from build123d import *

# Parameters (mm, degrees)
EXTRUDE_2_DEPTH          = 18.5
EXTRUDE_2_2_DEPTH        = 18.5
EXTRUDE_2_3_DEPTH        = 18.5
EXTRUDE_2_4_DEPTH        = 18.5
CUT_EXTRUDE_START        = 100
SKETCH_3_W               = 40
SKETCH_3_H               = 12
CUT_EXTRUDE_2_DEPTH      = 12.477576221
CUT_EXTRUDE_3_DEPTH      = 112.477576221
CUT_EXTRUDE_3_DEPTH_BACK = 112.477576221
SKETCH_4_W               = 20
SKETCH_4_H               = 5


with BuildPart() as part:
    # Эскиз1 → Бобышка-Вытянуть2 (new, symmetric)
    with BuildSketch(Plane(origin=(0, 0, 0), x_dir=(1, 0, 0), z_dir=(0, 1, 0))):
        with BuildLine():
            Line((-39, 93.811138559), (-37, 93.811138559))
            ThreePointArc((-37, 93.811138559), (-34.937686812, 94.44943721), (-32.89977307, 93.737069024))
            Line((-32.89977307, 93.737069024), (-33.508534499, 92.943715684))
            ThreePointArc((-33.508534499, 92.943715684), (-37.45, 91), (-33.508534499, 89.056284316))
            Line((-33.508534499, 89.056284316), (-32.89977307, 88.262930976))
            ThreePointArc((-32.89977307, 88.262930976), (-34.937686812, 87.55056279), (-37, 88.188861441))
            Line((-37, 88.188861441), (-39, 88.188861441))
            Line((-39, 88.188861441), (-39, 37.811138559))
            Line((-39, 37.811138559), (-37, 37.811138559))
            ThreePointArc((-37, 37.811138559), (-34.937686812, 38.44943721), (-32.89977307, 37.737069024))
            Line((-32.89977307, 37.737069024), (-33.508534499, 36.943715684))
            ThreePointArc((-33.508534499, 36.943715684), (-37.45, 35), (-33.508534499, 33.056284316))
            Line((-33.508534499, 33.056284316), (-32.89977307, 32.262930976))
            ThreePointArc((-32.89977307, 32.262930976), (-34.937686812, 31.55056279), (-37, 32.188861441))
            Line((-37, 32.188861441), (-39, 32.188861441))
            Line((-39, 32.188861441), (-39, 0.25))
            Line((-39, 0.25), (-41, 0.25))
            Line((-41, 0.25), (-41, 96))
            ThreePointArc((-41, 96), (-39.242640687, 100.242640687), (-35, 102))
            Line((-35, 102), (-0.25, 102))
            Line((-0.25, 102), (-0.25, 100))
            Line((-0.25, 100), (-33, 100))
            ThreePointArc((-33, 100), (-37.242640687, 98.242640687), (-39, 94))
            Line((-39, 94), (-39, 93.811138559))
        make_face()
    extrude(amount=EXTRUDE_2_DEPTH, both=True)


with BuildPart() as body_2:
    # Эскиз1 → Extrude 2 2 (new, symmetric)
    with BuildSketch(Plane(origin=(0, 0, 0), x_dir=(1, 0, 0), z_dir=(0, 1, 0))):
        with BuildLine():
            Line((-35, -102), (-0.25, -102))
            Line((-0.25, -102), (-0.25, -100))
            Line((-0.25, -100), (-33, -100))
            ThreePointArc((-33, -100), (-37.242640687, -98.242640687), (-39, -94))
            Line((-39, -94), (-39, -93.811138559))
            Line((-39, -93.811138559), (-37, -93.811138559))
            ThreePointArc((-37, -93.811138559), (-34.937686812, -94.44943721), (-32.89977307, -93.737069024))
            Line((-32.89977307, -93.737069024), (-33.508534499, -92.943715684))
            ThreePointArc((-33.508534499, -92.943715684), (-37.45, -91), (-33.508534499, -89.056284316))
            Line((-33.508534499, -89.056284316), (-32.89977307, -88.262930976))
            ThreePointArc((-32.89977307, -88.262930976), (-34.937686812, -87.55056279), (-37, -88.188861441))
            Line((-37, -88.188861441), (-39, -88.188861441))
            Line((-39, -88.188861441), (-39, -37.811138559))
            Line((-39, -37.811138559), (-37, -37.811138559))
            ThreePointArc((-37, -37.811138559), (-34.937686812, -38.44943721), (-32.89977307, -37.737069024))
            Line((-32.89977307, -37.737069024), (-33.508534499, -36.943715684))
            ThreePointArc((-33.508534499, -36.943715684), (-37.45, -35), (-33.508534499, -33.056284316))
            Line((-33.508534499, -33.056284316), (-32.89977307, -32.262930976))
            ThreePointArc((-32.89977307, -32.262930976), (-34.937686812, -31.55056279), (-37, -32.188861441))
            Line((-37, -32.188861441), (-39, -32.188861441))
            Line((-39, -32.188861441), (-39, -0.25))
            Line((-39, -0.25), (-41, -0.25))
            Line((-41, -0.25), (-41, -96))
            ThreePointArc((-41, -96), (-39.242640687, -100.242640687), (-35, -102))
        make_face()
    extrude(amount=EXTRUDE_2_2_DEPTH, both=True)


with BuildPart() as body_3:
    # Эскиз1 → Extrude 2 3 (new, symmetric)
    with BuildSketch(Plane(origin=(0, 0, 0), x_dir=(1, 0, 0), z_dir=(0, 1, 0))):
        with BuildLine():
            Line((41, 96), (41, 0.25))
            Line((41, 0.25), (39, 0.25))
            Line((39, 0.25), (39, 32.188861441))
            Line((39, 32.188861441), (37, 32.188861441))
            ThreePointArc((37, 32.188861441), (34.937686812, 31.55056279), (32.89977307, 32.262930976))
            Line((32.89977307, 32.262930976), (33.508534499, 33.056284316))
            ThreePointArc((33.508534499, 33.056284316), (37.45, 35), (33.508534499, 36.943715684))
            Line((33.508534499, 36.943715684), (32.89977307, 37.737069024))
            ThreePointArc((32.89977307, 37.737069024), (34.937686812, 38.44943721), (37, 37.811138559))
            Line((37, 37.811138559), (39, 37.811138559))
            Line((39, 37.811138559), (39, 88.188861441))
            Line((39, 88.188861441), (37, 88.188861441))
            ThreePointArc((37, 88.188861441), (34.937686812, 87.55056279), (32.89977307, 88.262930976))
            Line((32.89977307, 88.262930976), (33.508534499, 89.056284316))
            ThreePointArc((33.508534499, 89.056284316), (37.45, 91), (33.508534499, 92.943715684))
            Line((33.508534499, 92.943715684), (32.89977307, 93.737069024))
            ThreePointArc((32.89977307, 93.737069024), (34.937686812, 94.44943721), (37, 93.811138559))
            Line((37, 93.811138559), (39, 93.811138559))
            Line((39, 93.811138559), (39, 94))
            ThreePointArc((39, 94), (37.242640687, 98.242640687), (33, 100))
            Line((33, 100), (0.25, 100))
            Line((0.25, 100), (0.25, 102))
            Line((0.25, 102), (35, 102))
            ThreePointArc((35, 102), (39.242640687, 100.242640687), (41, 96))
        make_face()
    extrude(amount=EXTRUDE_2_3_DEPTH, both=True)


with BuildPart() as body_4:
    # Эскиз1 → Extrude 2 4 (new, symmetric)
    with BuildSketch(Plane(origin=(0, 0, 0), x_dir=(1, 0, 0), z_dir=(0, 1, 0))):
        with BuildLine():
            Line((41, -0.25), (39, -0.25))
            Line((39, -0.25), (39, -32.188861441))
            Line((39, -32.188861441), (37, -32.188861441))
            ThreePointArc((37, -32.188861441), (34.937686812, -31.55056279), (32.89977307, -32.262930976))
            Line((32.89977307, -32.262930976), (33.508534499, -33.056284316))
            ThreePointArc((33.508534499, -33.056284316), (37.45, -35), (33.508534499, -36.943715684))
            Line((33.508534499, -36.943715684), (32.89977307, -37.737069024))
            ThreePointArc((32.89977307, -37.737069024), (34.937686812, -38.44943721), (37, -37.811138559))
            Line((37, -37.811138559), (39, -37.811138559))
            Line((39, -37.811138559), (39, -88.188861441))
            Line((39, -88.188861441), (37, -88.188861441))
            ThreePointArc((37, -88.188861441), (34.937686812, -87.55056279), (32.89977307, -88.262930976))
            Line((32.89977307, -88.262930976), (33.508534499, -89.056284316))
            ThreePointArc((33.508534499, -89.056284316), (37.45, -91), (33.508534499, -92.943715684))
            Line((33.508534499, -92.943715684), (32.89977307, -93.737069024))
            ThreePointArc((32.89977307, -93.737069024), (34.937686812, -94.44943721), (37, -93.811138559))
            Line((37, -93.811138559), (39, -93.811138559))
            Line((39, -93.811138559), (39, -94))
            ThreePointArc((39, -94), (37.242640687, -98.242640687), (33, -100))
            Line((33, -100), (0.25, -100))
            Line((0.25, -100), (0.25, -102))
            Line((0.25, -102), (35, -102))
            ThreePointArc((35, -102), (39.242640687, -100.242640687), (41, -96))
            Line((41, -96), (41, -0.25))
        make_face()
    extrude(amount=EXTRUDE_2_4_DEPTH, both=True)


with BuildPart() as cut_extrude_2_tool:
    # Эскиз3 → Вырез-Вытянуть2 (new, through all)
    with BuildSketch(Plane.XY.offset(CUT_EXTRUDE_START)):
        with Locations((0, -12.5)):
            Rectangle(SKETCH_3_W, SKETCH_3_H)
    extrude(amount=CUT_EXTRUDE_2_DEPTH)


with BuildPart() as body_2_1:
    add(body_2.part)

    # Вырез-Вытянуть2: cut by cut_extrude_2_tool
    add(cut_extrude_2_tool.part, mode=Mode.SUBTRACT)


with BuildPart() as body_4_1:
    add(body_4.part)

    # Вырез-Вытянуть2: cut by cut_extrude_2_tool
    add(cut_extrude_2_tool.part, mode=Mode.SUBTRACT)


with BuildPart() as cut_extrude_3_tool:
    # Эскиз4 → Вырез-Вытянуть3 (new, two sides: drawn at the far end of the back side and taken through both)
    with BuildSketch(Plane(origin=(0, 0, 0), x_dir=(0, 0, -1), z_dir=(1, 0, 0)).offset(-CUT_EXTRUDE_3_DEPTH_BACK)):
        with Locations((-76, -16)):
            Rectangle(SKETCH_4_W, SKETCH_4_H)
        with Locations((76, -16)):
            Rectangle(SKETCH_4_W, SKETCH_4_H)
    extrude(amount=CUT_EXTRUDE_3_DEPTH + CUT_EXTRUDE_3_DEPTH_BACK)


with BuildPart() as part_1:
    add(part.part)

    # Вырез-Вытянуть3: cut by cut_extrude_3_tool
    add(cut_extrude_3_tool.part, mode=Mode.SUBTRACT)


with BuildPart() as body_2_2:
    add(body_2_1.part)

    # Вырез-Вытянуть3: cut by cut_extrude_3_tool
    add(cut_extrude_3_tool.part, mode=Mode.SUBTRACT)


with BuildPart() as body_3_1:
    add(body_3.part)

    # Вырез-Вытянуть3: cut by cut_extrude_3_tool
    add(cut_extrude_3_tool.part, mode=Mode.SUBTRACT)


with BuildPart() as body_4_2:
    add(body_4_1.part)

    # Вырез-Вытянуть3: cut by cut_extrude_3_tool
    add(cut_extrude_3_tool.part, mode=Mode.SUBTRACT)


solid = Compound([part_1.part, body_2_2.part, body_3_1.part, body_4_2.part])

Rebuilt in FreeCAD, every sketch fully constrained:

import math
import FreeCAD as App
import Part
import Sketcher

V = App.Vector
Q = App.Units.Quantity


def add_polygon(sketch, points):
    """Adds a closed chain of lines whose ends are joined by coincident constraints."""
    first, n = sketch.GeometryCount, len(points)
    for a, b in zip(points, points[1:] + points[:1]):
        sketch.addGeometry(Part.LineSegment(App.Vector(*a, 0), App.Vector(*b, 0)), False)
    for i in range(n):
        sketch.addConstraint(Sketcher.Constraint("Coincident", first + i, 2, first + (i + 1) % n, 1))

doc = App.newDocument("Part")
params = doc.addObject("Spreadsheet::Sheet", "Params")
for row, (alias, value) in enumerate([
    ("sketch1_radius", "6 mm"),
    ("sketch1_width", "2 mm"),
    ("sketch1_radius2", "3.45 mm"),
    ("sketch1_radius3", "2.45 mm"),
    ("sketch1_width2", "32.75 mm"),
    ("pad1_length", "37 mm"),
    ("sketch2_radius", "6 mm"),
    ("sketch2_width", "2 mm"),
    ("sketch2_radius2", "3.45 mm"),
    ("sketch2_radius3", "2.45 mm"),
    ("sketch2_width2", "34.75 mm"),
    ("pad2_length", "37 mm"),
    ("sketch3_radius", "6 mm"),
    ("sketch3_width", "2 mm"),
    ("sketch3_radius2", "3.45 mm"),
    ("sketch3_radius3", "2.45 mm"),
    ("sketch3_width2", "34.75 mm"),
    ("pad3_length", "37 mm"),
    ("sketch4_radius", "6 mm"),
    ("sketch4_width", "2 mm"),
    ("sketch4_radius2", "3.45 mm"),
    ("sketch4_radius3", "2.45 mm"),
    ("sketch4_width2", "32.75 mm"),
    ("pad4_length", "37 mm"),
    ("sketch5_width", "40 mm"),
    ("sketch5_height", "12 mm"),
    ("pad5_length", "12.477576 mm"),
    ("sketch6_width", "5 mm"),
    ("sketch6_height", "20 mm"),
    ("pad6_length", "112.477576 mm"),
    ("pad6_length2", "112.477576 mm"),
], start=1):
    params.set(f"A{row}", alias)
    params.set(f"B{row}", "=" + value)
    params.setAlias(f"B{row}", alias)

body = doc.addObject("PartDesign::Body", "Body")

# Sketch on XZ plane
sketch1 = body.newObject("Sketcher::SketchObject", "Sketch")
sketch1.AttachmentSupport = (doc.getObject("XZ_Plane"), [""])
sketch1.MapMode = "FlatFace"
sketch1.addGeometry([
    Part.LineSegment(V(-37, -93.811139, 0), V(-39, -93.811139, 0)),  # 0
    Part.LineSegment(V(-39, -93.811139, 0), V(-39, -94, 0)),  # 1
    Part.ArcOfCircle(Part.Circle(V(-33, -94, 0), V(0, 0, 1), 6), math.radians(180), math.radians(270)),  # 2
    Part.LineSegment(V(-33, -100, 0), V(-0.25, -100, 0)),  # 3
    Part.LineSegment(V(-0.25, -100, 0), V(-0.25, -102, 0)),  # 4
    Part.LineSegment(V(-0.25, -102, 0), V(-35, -102, 0)),  # 5
    Part.ArcOfCircle(Part.Circle(V(-35, -96, 0), V(0, 0, 1), 6), math.radians(180), math.radians(270)),  # 6
    Part.LineSegment(V(-41, -96, 0), V(-41, -0.25, 0)),  # 7
    Part.LineSegment(V(-41, -0.25, 0), V(-39, -0.25, 0)),  # 8
    Part.LineSegment(V(-39, -0.25, 0), V(-39, -32.188861, 0)),  # 9
    Part.LineSegment(V(-39, -32.188861, 0), V(-37, -32.188861, 0)),  # 10
    Part.ArcOfCircle(Part.Circle(V(-35, -35, 0), V(0, 0, 1), 3.45), math.radians(52.5), math.radians(125.430158)),  # 11
    Part.LineSegment(V(-32.899773, -32.262931, 0), V(-33.508534, -33.056284, 0)),  # 12
    Part.ArcOfCircle(Part.Circle(V(-35, -35, 0), V(0, 0, 1), 2.45), math.radians(52.5), math.radians(307.5)),  # 13
    Part.LineSegment(V(-33.508534, -36.943716, 0), V(-32.899773, -37.737069, 0)),  # 14
    Part.ArcOfCircle(Part.Circle(V(-35, -35, 0), V(0, 0, 1), 3.45), math.radians(-125.430158), math.radians(-52.5)),  # 15
    Part.LineSegment(V(-37, -37.811139, 0), V(-39, -37.811139, 0)),  # 16
    Part.LineSegment(V(-39, -37.811139, 0), V(-39, -88.188861, 0)),  # 17
    Part.LineSegment(V(-39, -88.188861, 0), V(-37, -88.188861, 0)),  # 18
    Part.ArcOfCircle(Part.Circle(V(-35, -91, 0), V(0, 0, 1), 3.45), math.radians(52.5), math.radians(125.430158)),  # 19
    Part.LineSegment(V(-32.899773, -88.262931, 0), V(-33.508534, -89.056284, 0)),  # 20
    Part.ArcOfCircle(Part.Circle(V(-35, -91, 0), V(0, 0, 1), 2.45), math.radians(52.5), math.radians(307.5)),  # 21
    Part.LineSegment(V(-33.508534, -92.943716, 0), V(-32.899773, -93.737069, 0)),  # 22
    Part.ArcOfCircle(Part.Circle(V(-35, -91, 0), V(0, 0, 1), 3.45), math.radians(-125.430158), math.radians(-52.5)),  # 23
], False)
sketch1.addConstraint([
    Sketcher.Constraint("Coincident", 0, 2, 1, 1),
    Sketcher.Constraint("Tangent", 1, 2, 2, 1),
    Sketcher.Constraint("Tangent", 2, 2, 3, 1),
    Sketcher.Constraint("Coincident", 3, 2, 4, 1),
    Sketcher.Constraint("Coincident", 4, 2, 5, 1),
    Sketcher.Constraint("Tangent", 5, 2, 6, 2),
    Sketcher.Constraint("Tangent", 6, 1, 7, 1),
    Sketcher.Constraint("Coincident", 7, 2, 8, 1),
    Sketcher.Constraint("Coincident", 8, 2, 9, 1),
    Sketcher.Constraint("Coincident", 9, 2, 10, 1),
    Sketcher.Constraint("Coincident", 10, 2, 11, 2),
    Sketcher.Constraint("Coincident", 11, 1, 12, 1),
    Sketcher.Constraint("Coincident", 12, 2, 13, 1),
    Sketcher.Constraint("Coincident", 13, 2, 14, 1),
    Sketcher.Constraint("Coincident", 14, 2, 15, 2),
    Sketcher.Constraint("Coincident", 15, 1, 16, 1),
    Sketcher.Constraint("Coincident", 16, 2, 17, 1),
    Sketcher.Constraint("Coincident", 17, 2, 18, 1),
    Sketcher.Constraint("Coincident", 18, 2, 19, 2),
    Sketcher.Constraint("Coincident", 19, 1, 20, 1),
    Sketcher.Constraint("Coincident", 20, 2, 21, 1),
    Sketcher.Constraint("Coincident", 21, 2, 22, 1),
    Sketcher.Constraint("Coincident", 22, 2, 23, 2),
    Sketcher.Constraint("Coincident", 23, 1, 0, 1),
    Sketcher.Constraint("Horizontal", 0),
    Sketcher.Constraint("Vertical", 1),
    Sketcher.Constraint("Horizontal", 3),
    Sketcher.Constraint("Vertical", 4),
    Sketcher.Constraint("Horizontal", 5),
    Sketcher.Constraint("Vertical", 7),
    Sketcher.Constraint("Horizontal", 8),
    Sketcher.Constraint("Vertical", 9),
    Sketcher.Constraint("Horizontal", 10),
    Sketcher.Constraint("Horizontal", 16),
    Sketcher.Constraint("Vertical", 17),
    Sketcher.Constraint("Horizontal", 18),
    Sketcher.Constraint("Coincident", 13, 3, 11, 3),
    Sketcher.Constraint("Coincident", 15, 3, 11, 3),
    Sketcher.Constraint("Coincident", 21, 3, 19, 3),
    Sketcher.Constraint("Coincident", 23, 3, 19, 3),
    Sketcher.Constraint("Equal", 2, 6),
    Sketcher.Constraint("Equal", 11, 15),
    Sketcher.Constraint("Equal", 15, 19),
    Sketcher.Constraint("Equal", 13, 21),
    Sketcher.Constraint("Equal", 19, 23),
    Sketcher.Constraint("Parallel", 12, 20),
    Sketcher.Constraint("Parallel", 14, 22),
    Sketcher.Constraint("Vertical", 6, 3, 11, 3),
    Sketcher.Constraint("Vertical", 15, 3, 19, 3),
    Sketcher.Constraint("Vertical", 1, 2, 8, 2),
    Sketcher.Constraint("Vertical", 12, 2, 13, 2),
    Sketcher.Constraint("Vertical", 11, 1, 14, 2),
    Sketcher.Constraint("Vertical", 10, 2, 15, 1),
    Sketcher.Constraint("Vertical", 9, 2, 16, 2),
    Sketcher.Constraint("Vertical", 15, 1, 18, 2),
    Sketcher.Constraint("Vertical", 14, 2, 19, 1),
    Sketcher.Constraint("Vertical", 20, 2, 21, 2),
    Sketcher.Constraint("Vertical", 18, 2, 23, 1),
    Sketcher.Constraint("Equal", 0, 8),
    Sketcher.Constraint("Equal", 18, 4),
    Sketcher.Constraint("Radius", 2, 6.0),
    Sketcher.Constraint("DistanceX", 0, 2, 0, 1, 2.0),
    Sketcher.Constraint("Radius", 11, 3.45),
    Sketcher.Constraint("Radius", 13, 2.45),
    Sketcher.Constraint("DistanceX", 2, 3, -1, 1, 33.0),
    Sketcher.Constraint("DistanceY", 2, 3, -1, 1, 94.0),
    Sketcher.Constraint("DistanceY", 11, 3, -1, 1, 35.0),
    Sketcher.Constraint("DistanceY", 19, 3, -1, 1, 91.0),
    Sketcher.Constraint("Angle", 12, Q("-127.5 deg")),
    Sketcher.Constraint("DistanceX", 3, 1, 3, 2, 32.75),
    Sketcher.Constraint("DistanceY", 7, 1, 7, 2, 95.75),
    Sketcher.Constraint("DistanceY", 11, 1, -1, 1, 32.262931),
])
sketch1.setExpression("Constraints[60]", "Params.sketch1_radius")
sketch1.setExpression("Constraints[61]", "Params.sketch1_width")
sketch1.setExpression("Constraints[62]", "Params.sketch1_radius2")
sketch1.setExpression("Constraints[63]", "Params.sketch1_radius3")
sketch1.setExpression("Constraints[69]", "Params.sketch1_width2")
pad1 = body.newObject("PartDesign::Pad", "Pad")
pad1.Profile = sketch1
pad1.setExpression("Length", "Params.pad1_length")
pad1.Midplane = True
body2 = doc.addObject("PartDesign::Body", "Body001")

# Sketch on XZ plane
sketch2 = body2.newObject("Sketcher::SketchObject", "Sketch001")
sketch2.AttachmentSupport = (doc.getObject("XZ_Plane001"), [""])
sketch2.MapMode = "FlatFace"
sketch2.addGeometry([
    Part.LineSegment(V(-35, 102, 0), V(-0.25, 102, 0)),  # 0
    Part.LineSegment(V(-0.25, 102, 0), V(-0.25, 100, 0)),  # 1
    Part.LineSegment(V(-0.25, 100, 0), V(-33, 100, 0)),  # 2
    Part.ArcOfCircle(Part.Circle(V(-33, 94, 0), V(0, 0, 1), 6), math.radians(90), math.radians(180)),  # 3
    Part.LineSegment(V(-39, 94, 0), V(-39, 93.811139, 0)),  # 4
    Part.LineSegment(V(-39, 93.811139, 0), V(-37, 93.811139, 0)),  # 5
    Part.ArcOfCircle(Part.Circle(V(-35, 91, 0), V(0, 0, 1), 3.45), math.radians(52.5), math.radians(125.430158)),  # 6
    Part.LineSegment(V(-32.899773, 93.737069, 0), V(-33.508534, 92.943716, 0)),  # 7
    Part.ArcOfCircle(Part.Circle(V(-35, 91, 0), V(0, 0, 1), 2.45), math.radians(52.5), math.radians(307.5)),  # 8
    Part.LineSegment(V(-33.508534, 89.056284, 0), V(-32.899773, 88.262931, 0)),  # 9
    Part.ArcOfCircle(Part.Circle(V(-35, 91, 0), V(0, 0, 1), 3.45), math.radians(-125.430158), math.radians(-52.5)),  # 10
    Part.LineSegment(V(-37, 88.188861, 0), V(-39, 88.188861, 0)),  # 11
    Part.LineSegment(V(-39, 88.188861, 0), V(-39, 37.811139, 0)),  # 12
    Part.LineSegment(V(-39, 37.811139, 0), V(-37, 37.811139, 0)),  # 13
    Part.ArcOfCircle(Part.Circle(V(-35, 35, 0), V(0, 0, 1), 3.45), math.radians(52.5), math.radians(125.430158)),  # 14
    Part.LineSegment(V(-32.899773, 37.737069, 0), V(-33.508534, 36.943716, 0)),  # 15
    Part.ArcOfCircle(Part.Circle(V(-35, 35, 0), V(0, 0, 1), 2.45), math.radians(52.5), math.radians(307.5)),  # 16
    Part.LineSegment(V(-33.508534, 33.056284, 0), V(-32.899773, 32.262931, 0)),  # 17
    Part.ArcOfCircle(Part.Circle(V(-35, 35, 0), V(0, 0, 1), 3.45), math.radians(-125.430158), math.radians(-52.5)),  # 18
    Part.LineSegment(V(-37, 32.188861, 0), V(-39, 32.188861, 0)),  # 19
    Part.LineSegment(V(-39, 32.188861, 0), V(-39, 0.25, 0)),  # 20
    Part.LineSegment(V(-39, 0.25, 0), V(-41, 0.25, 0)),  # 21
    Part.LineSegment(V(-41, 0.25, 0), V(-41, 96, 0)),  # 22
    Part.ArcOfCircle(Part.Circle(V(-35, 96, 0), V(0, 0, 1), 6), math.radians(90), math.radians(180)),  # 23
], False)
sketch2.addConstraint([
    Sketcher.Constraint("Coincident", 0, 2, 1, 1),
    Sketcher.Constraint("Coincident", 1, 2, 2, 1),
    Sketcher.Constraint("Tangent", 2, 2, 3, 1),
    Sketcher.Constraint("Tangent", 3, 2, 4, 1),
    Sketcher.Constraint("Coincident", 4, 2, 5, 1),
    Sketcher.Constraint("Coincident", 5, 2, 6, 2),
    Sketcher.Constraint("Coincident", 6, 1, 7, 1),
    Sketcher.Constraint("Coincident", 7, 2, 8, 1),
    Sketcher.Constraint("Coincident", 8, 2, 9, 1),
    Sketcher.Constraint("Coincident", 9, 2, 10, 2),
    Sketcher.Constraint("Coincident", 10, 1, 11, 1),
    Sketcher.Constraint("Coincident", 11, 2, 12, 1),
    Sketcher.Constraint("Coincident", 12, 2, 13, 1),
    Sketcher.Constraint("Coincident", 13, 2, 14, 2),
    Sketcher.Constraint("Coincident", 14, 1, 15, 1),
    Sketcher.Constraint("Coincident", 15, 2, 16, 1),
    Sketcher.Constraint("Coincident", 16, 2, 17, 1),
    Sketcher.Constraint("Coincident", 17, 2, 18, 2),
    Sketcher.Constraint("Coincident", 18, 1, 19, 1),
    Sketcher.Constraint("Coincident", 19, 2, 20, 1),
    Sketcher.Constraint("Coincident", 20, 2, 21, 1),
    Sketcher.Constraint("Coincident", 21, 2, 22, 1),
    Sketcher.Constraint("Tangent", 22, 2, 23, 2),
    Sketcher.Constraint("Tangent", 23, 1, 0, 1),
    Sketcher.Constraint("Horizontal", 0),
    Sketcher.Constraint("Vertical", 1),
    Sketcher.Constraint("Horizontal", 2),
    Sketcher.Constraint("Vertical", 4),
    Sketcher.Constraint("Horizontal", 5),
    Sketcher.Constraint("Horizontal", 11),
    Sketcher.Constraint("Vertical", 12),
    Sketcher.Constraint("Horizontal", 13),
    Sketcher.Constraint("Horizontal", 19),
    Sketcher.Constraint("Vertical", 20),
    Sketcher.Constraint("Horizontal", 21),
    Sketcher.Constraint("Vertical", 22),
    Sketcher.Constraint("Coincident", 8, 3, 6, 3),
    Sketcher.Constraint("Coincident", 10, 3, 6, 3),
    Sketcher.Constraint("Coincident", 16, 3, 14, 3),
    Sketcher.Constraint("Coincident", 18, 3, 14, 3),
    Sketcher.Constraint("Equal", 6, 10),
    Sketcher.Constraint("Equal", 10, 14),
    Sketcher.Constraint("Equal", 8, 16),
    Sketcher.Constraint("Equal", 14, 18),
    Sketcher.Constraint("Equal", 3, 23),
    Sketcher.Constraint("Parallel", 7, 15),
    Sketcher.Constraint("Parallel", 9, 17),
    Sketcher.Constraint("Vertical", 10, 3, 14, 3),
    Sketcher.Constraint("Vertical", 18, 3, 23, 3),
    Sketcher.Constraint("Vertical", 7, 2, 8, 2),
    Sketcher.Constraint("Vertical", 6, 1, 9, 2),
    Sketcher.Constraint("Vertical", 5, 2, 10, 1),
    Sketcher.Constraint("Vertical", 4, 2, 11, 2),
    Sketcher.Constraint("Vertical", 10, 1, 13, 2),
    Sketcher.Constraint("Vertical", 9, 2, 14, 1),
    Sketcher.Constraint("Vertical", 15, 2, 16, 2),
    Sketcher.Constraint("Vertical", 13, 2, 18, 1),
    Sketcher.Constraint("Vertical", 12, 2, 19, 2),
    Sketcher.Constraint("Equal", 19, 21),
    Sketcher.Constraint("Equal", 21, 1),
    Sketcher.Constraint("Radius", 3, 6.0),
    Sketcher.Constraint("DistanceX", 5, 1, 5, 2, 2.0),
    Sketcher.Constraint("Radius", 6, 3.45),
    Sketcher.Constraint("Radius", 8, 2.45),
    Sketcher.Constraint("DistanceX", 3, 3, -1, 1, 33.0),
    Sketcher.Constraint("DistanceY", -1, 1, 3, 3, 94.0),
    Sketcher.Constraint("DistanceY", -1, 1, 6, 3, 91.0),
    Sketcher.Constraint("DistanceY", -1, 1, 14, 3, 35.0),
    Sketcher.Constraint("Angle", 7, Q("-127.5 deg")),
    Sketcher.Constraint("DistanceX", 0, 1, 0, 2, 34.75),
    Sketcher.Constraint("DistanceY", 22, 1, 22, 2, 95.75),
    Sketcher.Constraint("DistanceY", -1, 1, 6, 1, 93.737069),
])
sketch2.setExpression("Constraints[60]", "Params.sketch2_radius")
sketch2.setExpression("Constraints[61]", "Params.sketch2_width")
sketch2.setExpression("Constraints[62]", "Params.sketch2_radius2")
sketch2.setExpression("Constraints[63]", "Params.sketch2_radius3")
sketch2.setExpression("Constraints[69]", "Params.sketch2_width2")
pad2 = body2.newObject("PartDesign::Pad", "Pad001")
pad2.Profile = sketch2
pad2.setExpression("Length", "Params.pad2_length")
pad2.Midplane = True
body3 = doc.addObject("PartDesign::Body", "Body002")

# Sketch on XZ plane
sketch3 = body3.newObject("Sketcher::SketchObject", "Sketch002")
sketch3.AttachmentSupport = (doc.getObject("XZ_Plane002"), [""])
sketch3.MapMode = "FlatFace"
sketch3.addGeometry([
    Part.LineSegment(V(41, -0.25, 0), V(41, -96, 0)),  # 0
    Part.ArcOfCircle(Part.Circle(V(35, -96, 0), V(0, 0, 1), 6), math.radians(-90), math.radians(0)),  # 1
    Part.LineSegment(V(35, -102, 0), V(0.25, -102, 0)),  # 2
    Part.LineSegment(V(0.25, -102, 0), V(0.25, -100, 0)),  # 3
    Part.LineSegment(V(0.25, -100, 0), V(33, -100, 0)),  # 4
    Part.ArcOfCircle(Part.Circle(V(33, -94, 0), V(0, 0, 1), 6), math.radians(-90), math.radians(0)),  # 5
    Part.LineSegment(V(39, -94, 0), V(39, -93.811139, 0)),  # 6
    Part.LineSegment(V(39, -93.811139, 0), V(37, -93.811139, 0)),  # 7
    Part.ArcOfCircle(Part.Circle(V(35, -91, 0), V(0, 0, 1), 3.45), math.radians(-127.5), math.radians(-54.569842)),  # 8
    Part.LineSegment(V(32.899773, -93.737069, 0), V(33.508534, -92.943716, 0)),  # 9
    Part.ArcOfCircle(Part.Circle(V(35, -91, 0), V(0, 0, 1), 2.45), math.radians(-127.5), math.radians(127.5)),  # 10
    Part.LineSegment(V(33.508534, -89.056284, 0), V(32.899773, -88.262931, 0)),  # 11
    Part.ArcOfCircle(Part.Circle(V(35, -91, 0), V(0, 0, 1), 3.45), math.radians(54.569842), math.radians(127.5)),  # 12
    Part.LineSegment(V(37, -88.188861, 0), V(39, -88.188861, 0)),  # 13
    Part.LineSegment(V(39, -88.188861, 0), V(39, -37.811139, 0)),  # 14
    Part.LineSegment(V(39, -37.811139, 0), V(37, -37.811139, 0)),  # 15
    Part.ArcOfCircle(Part.Circle(V(35, -35, 0), V(0, 0, 1), 3.45), math.radians(-127.5), math.radians(-54.569842)),  # 16
    Part.LineSegment(V(32.899773, -37.737069, 0), V(33.508534, -36.943716, 0)),  # 17
    Part.ArcOfCircle(Part.Circle(V(35, -35, 0), V(0, 0, 1), 2.45), math.radians(-127.5), math.radians(127.5)),  # 18
    Part.LineSegment(V(33.508534, -33.056284, 0), V(32.899773, -32.262931, 0)),  # 19
    Part.ArcOfCircle(Part.Circle(V(35, -35, 0), V(0, 0, 1), 3.45), math.radians(54.569842), math.radians(127.5)),  # 20
    Part.LineSegment(V(37, -32.188861, 0), V(39, -32.188861, 0)),  # 21
    Part.LineSegment(V(39, -32.188861, 0), V(39, -0.25, 0)),  # 22
    Part.LineSegment(V(39, -0.25, 0), V(41, -0.25, 0)),  # 23
], False)
sketch3.addConstraint([
    Sketcher.Constraint("Tangent", 0, 2, 1, 2),
    Sketcher.Constraint("Tangent", 1, 1, 2, 1),
    Sketcher.Constraint("Coincident", 2, 2, 3, 1),
    Sketcher.Constraint("Coincident", 3, 2, 4, 1),
    Sketcher.Constraint("Tangent", 4, 2, 5, 1),
    Sketcher.Constraint("Tangent", 5, 2, 6, 1),
    Sketcher.Constraint("Coincident", 6, 2, 7, 1),
    Sketcher.Constraint("Coincident", 7, 2, 8, 2),
    Sketcher.Constraint("Coincident", 8, 1, 9, 1),
    Sketcher.Constraint("Coincident", 9, 2, 10, 1),
    Sketcher.Constraint("Coincident", 10, 2, 11, 1),
    Sketcher.Constraint("Coincident", 11, 2, 12, 2),
    Sketcher.Constraint("Coincident", 12, 1, 13, 1),
    Sketcher.Constraint("Coincident", 13, 2, 14, 1),
    Sketcher.Constraint("Coincident", 14, 2, 15, 1),
    Sketcher.Constraint("Coincident", 15, 2, 16, 2),
    Sketcher.Constraint("Coincident", 16, 1, 17, 1),
    Sketcher.Constraint("Coincident", 17, 2, 18, 1),
    Sketcher.Constraint("Coincident", 18, 2, 19, 1),
    Sketcher.Constraint("Coincident", 19, 2, 20, 2),
    Sketcher.Constraint("Coincident", 20, 1, 21, 1),
    Sketcher.Constraint("Coincident", 21, 2, 22, 1),
    Sketcher.Constraint("Coincident", 22, 2, 23, 1),
    Sketcher.Constraint("Coincident", 23, 2, 0, 1),
    Sketcher.Constraint("Vertical", 0),
    Sketcher.Constraint("Horizontal", 2),
    Sketcher.Constraint("Vertical", 3),
    Sketcher.Constraint("Horizontal", 4),
    Sketcher.Constraint("Vertical", 6),
    Sketcher.Constraint("Horizontal", 7),
    Sketcher.Constraint("Horizontal", 13),
    Sketcher.Constraint("Vertical", 14),
    Sketcher.Constraint("Horizontal", 15),
    Sketcher.Constraint("Horizontal", 21),
    Sketcher.Constraint("Vertical", 22),
    Sketcher.Constraint("Horizontal", 23),
    Sketcher.Constraint("Coincident", 10, 3, 8, 3),
    Sketcher.Constraint("Coincident", 12, 3, 8, 3),
    Sketcher.Constraint("Coincident", 18, 3, 16, 3),
    Sketcher.Constraint("Coincident", 20, 3, 16, 3),
    Sketcher.Constraint("Equal", 1, 5),
    Sketcher.Constraint("Equal", 8, 12),
    Sketcher.Constraint("Equal", 12, 16),
    Sketcher.Constraint("Equal", 10, 18),
    Sketcher.Constraint("Equal", 16, 20),
    Sketcher.Constraint("Parallel", 9, 17),
    Sketcher.Constraint("Parallel", 11, 19),
    Sketcher.Constraint("Vertical", 1, 3, 8, 3),
    Sketcher.Constraint("Vertical", 12, 3, 16, 3),
    Sketcher.Constraint("Vertical", 9, 2, 10, 2),
    Sketcher.Constraint("Vertical", 8, 1, 11, 2),
    Sketcher.Constraint("Vertical", 7, 2, 12, 1),
    Sketcher.Constraint("Vertical", 6, 2, 13, 2),
    Sketcher.Constraint("Vertical", 12, 1, 15, 2),
    Sketcher.Constraint("Vertical", 11, 2, 16, 1),
    Sketcher.Constraint("Vertical", 17, 2, 18, 2),
    Sketcher.Constraint("Vertical", 15, 2, 20, 1),
    Sketcher.Constraint("Vertical", 14, 2, 21, 2),
    Sketcher.Constraint("Equal", 21, 23),
    Sketcher.Constraint("Equal", 23, 3),
    Sketcher.Constraint("Radius", 1, 6.0),
    Sketcher.Constraint("DistanceX", 7, 2, 7, 1, 2.0),
    Sketcher.Constraint("Radius", 8, 3.45),
    Sketcher.Constraint("Radius", 10, 2.45),
    Sketcher.Constraint("DistanceX", -1, 1, 1, 3, 35.0),
    Sketcher.Constraint("DistanceY", 1, 3, -1, 1, 96.0),
    Sketcher.Constraint("DistanceY", 8, 3, -1, 1, 91.0),
    Sketcher.Constraint("DistanceY", 16, 3, -1, 1, 35.0),
    Sketcher.Constraint("Angle", 9, Q("52.5 deg")),
    Sketcher.Constraint("DistanceX", 2, 2, 2, 1, 34.75),
    Sketcher.Constraint("DistanceY", 0, 2, 0, 1, 95.75),
    Sketcher.Constraint("DistanceY", 8, 1, -1, 1, 93.737069),
])
sketch3.setExpression("Constraints[60]", "Params.sketch3_radius")
sketch3.setExpression("Constraints[61]", "Params.sketch3_width")
sketch3.setExpression("Constraints[62]", "Params.sketch3_radius2")
sketch3.setExpression("Constraints[63]", "Params.sketch3_radius3")
sketch3.setExpression("Constraints[69]", "Params.sketch3_width2")
pad3 = body3.newObject("PartDesign::Pad", "Pad002")
pad3.Profile = sketch3
pad3.setExpression("Length", "Params.pad3_length")
pad3.Midplane = True
body4 = doc.addObject("PartDesign::Body", "Body003")

# Sketch on XZ plane
sketch4 = body4.newObject("Sketcher::SketchObject", "Sketch003")
sketch4.AttachmentSupport = (doc.getObject("XZ_Plane003"), [""])
sketch4.MapMode = "FlatFace"
sketch4.addGeometry([
    Part.LineSegment(V(41, 0.25, 0), V(39, 0.25, 0)),  # 0
    Part.LineSegment(V(39, 0.25, 0), V(39, 32.188861, 0)),  # 1
    Part.LineSegment(V(39, 32.188861, 0), V(37, 32.188861, 0)),  # 2
    Part.ArcOfCircle(Part.Circle(V(35, 35, 0), V(0, 0, 1), 3.45), math.radians(-127.5), math.radians(-54.569842)),  # 3
    Part.LineSegment(V(32.899773, 32.262931, 0), V(33.508534, 33.056284, 0)),  # 4
    Part.ArcOfCircle(Part.Circle(V(35, 35, 0), V(0, 0, 1), 2.45), math.radians(-127.5), math.radians(127.5)),  # 5
    Part.LineSegment(V(33.508534, 36.943716, 0), V(32.899773, 37.737069, 0)),  # 6
    Part.ArcOfCircle(Part.Circle(V(35, 35, 0), V(0, 0, 1), 3.45), math.radians(54.569842), math.radians(127.5)),  # 7
    Part.LineSegment(V(37, 37.811139, 0), V(39, 37.811139, 0)),  # 8
    Part.LineSegment(V(39, 37.811139, 0), V(39, 88.188861, 0)),  # 9
    Part.LineSegment(V(39, 88.188861, 0), V(37, 88.188861, 0)),  # 10
    Part.ArcOfCircle(Part.Circle(V(35, 91, 0), V(0, 0, 1), 3.45), math.radians(-127.5), math.radians(-54.569842)),  # 11
    Part.LineSegment(V(32.899773, 88.262931, 0), V(33.508534, 89.056284, 0)),  # 12
    Part.ArcOfCircle(Part.Circle(V(35, 91, 0), V(0, 0, 1), 2.45), math.radians(-127.5), math.radians(127.5)),  # 13
    Part.LineSegment(V(33.508534, 92.943716, 0), V(32.899773, 93.737069, 0)),  # 14
    Part.ArcOfCircle(Part.Circle(V(35, 91, 0), V(0, 0, 1), 3.45), math.radians(54.569842), math.radians(127.5)),  # 15
    Part.LineSegment(V(37, 93.811139, 0), V(39, 93.811139, 0)),  # 16
    Part.LineSegment(V(39, 93.811139, 0), V(39, 94, 0)),  # 17
    Part.ArcOfCircle(Part.Circle(V(33, 94, 0), V(0, 0, 1), 6), math.radians(0), math.radians(90)),  # 18
    Part.LineSegment(V(33, 100, 0), V(0.25, 100, 0)),  # 19
    Part.LineSegment(V(0.25, 100, 0), V(0.25, 102, 0)),  # 20
    Part.LineSegment(V(0.25, 102, 0), V(35, 102, 0)),  # 21
    Part.ArcOfCircle(Part.Circle(V(35, 96, 0), V(0, 0, 1), 6), math.radians(0), math.radians(90)),  # 22
    Part.LineSegment(V(41, 96, 0), V(41, 0.25, 0)),  # 23
], False)
sketch4.addConstraint([
    Sketcher.Constraint("Coincident", 0, 2, 1, 1),
    Sketcher.Constraint("Coincident", 1, 2, 2, 1),
    Sketcher.Constraint("Coincident", 2, 2, 3, 2),
    Sketcher.Constraint("Coincident", 3, 1, 4, 1),
    Sketcher.Constraint("Coincident", 4, 2, 5, 1),
    Sketcher.Constraint("Coincident", 5, 2, 6, 1),
    Sketcher.Constraint("Coincident", 6, 2, 7, 2),
    Sketcher.Constraint("Coincident", 7, 1, 8, 1),
    Sketcher.Constraint("Coincident", 8, 2, 9, 1),
    Sketcher.Constraint("Coincident", 9, 2, 10, 1),
    Sketcher.Constraint("Coincident", 10, 2, 11, 2),
    Sketcher.Constraint("Coincident", 11, 1, 12, 1),
    Sketcher.Constraint("Coincident", 12, 2, 13, 1),
    Sketcher.Constraint("Coincident", 13, 2, 14, 1),
    Sketcher.Constraint("Coincident", 14, 2, 15, 2),
    Sketcher.Constraint("Coincident", 15, 1, 16, 1),
    Sketcher.Constraint("Coincident", 16, 2, 17, 1),
    Sketcher.Constraint("Tangent", 17, 2, 18, 1),
    Sketcher.Constraint("Tangent", 18, 2, 19, 1),
    Sketcher.Constraint("Coincident", 19, 2, 20, 1),
    Sketcher.Constraint("Coincident", 20, 2, 21, 1),
    Sketcher.Constraint("Tangent", 21, 2, 22, 2),
    Sketcher.Constraint("Tangent", 22, 1, 23, 1),
    Sketcher.Constraint("Coincident", 23, 2, 0, 1),
    Sketcher.Constraint("Horizontal", 0),
    Sketcher.Constraint("Vertical", 1),
    Sketcher.Constraint("Horizontal", 2),
    Sketcher.Constraint("Horizontal", 8),
    Sketcher.Constraint("Vertical", 9),
    Sketcher.Constraint("Horizontal", 10),
    Sketcher.Constraint("Horizontal", 16),
    Sketcher.Constraint("Vertical", 17),
    Sketcher.Constraint("Horizontal", 19),
    Sketcher.Constraint("Vertical", 20),
    Sketcher.Constraint("Horizontal", 21),
    Sketcher.Constraint("Vertical", 23),
    Sketcher.Constraint("Coincident", 5, 3, 3, 3),
    Sketcher.Constraint("Coincident", 7, 3, 3, 3),
    Sketcher.Constraint("Coincident", 13, 3, 11, 3),
    Sketcher.Constraint("Coincident", 15, 3, 11, 3),
    Sketcher.Constraint("Equal", 3, 7),
    Sketcher.Constraint("Equal", 7, 11),
    Sketcher.Constraint("Equal", 5, 13),
    Sketcher.Constraint("Equal", 11, 15),
    Sketcher.Constraint("Equal", 18, 22),
    Sketcher.Constraint("Parallel", 4, 12),
    Sketcher.Constraint("Parallel", 6, 14),
    Sketcher.Constraint("Vertical", 7, 3, 11, 3),
    Sketcher.Constraint("Vertical", 15, 3, 22, 3),
    Sketcher.Constraint("Vertical", 4, 2, 5, 2),
    Sketcher.Constraint("Vertical", 3, 1, 6, 2),
    Sketcher.Constraint("Vertical", 2, 2, 7, 1),
    Sketcher.Constraint("Vertical", 1, 2, 8, 2),
    Sketcher.Constraint("Vertical", 7, 1, 10, 2),
    Sketcher.Constraint("Vertical", 6, 2, 11, 1),
    Sketcher.Constraint("Vertical", 12, 2, 13, 2),
    Sketcher.Constraint("Vertical", 10, 2, 15, 1),
    Sketcher.Constraint("Vertical", 9, 2, 16, 2),
    Sketcher.Constraint("Equal", 0, 2),
    Sketcher.Constraint("Equal", 16, 20),
    Sketcher.Constraint("Radius", 18, 6.0),
    Sketcher.Constraint("DistanceX", 0, 2, 0, 1, 2.0),
    Sketcher.Constraint("Radius", 3, 3.45),
    Sketcher.Constraint("Radius", 5, 2.45),
    Sketcher.Constraint("DistanceX", -1, 1, 3, 3, 35.0),
    Sketcher.Constraint("DistanceY", -1, 1, 3, 3, 35.0),
    Sketcher.Constraint("DistanceY", -1, 1, 11, 3, 91.0),
    Sketcher.Constraint("DistanceY", -1, 1, 18, 3, 94.0),
    Sketcher.Constraint("Angle", 4, Q("52.5 deg")),
    Sketcher.Constraint("DistanceX", 19, 2, 19, 1, 32.75),
    Sketcher.Constraint("DistanceY", 23, 2, 23, 1, 95.75),
    Sketcher.Constraint("DistanceY", -1, 1, 3, 1, 32.262931),
])
sketch4.setExpression("Constraints[60]", "Params.sketch4_radius")
sketch4.setExpression("Constraints[61]", "Params.sketch4_width")
sketch4.setExpression("Constraints[62]", "Params.sketch4_radius2")
sketch4.setExpression("Constraints[63]", "Params.sketch4_radius3")
sketch4.setExpression("Constraints[69]", "Params.sketch4_width2")
pad4 = body4.newObject("PartDesign::Pad", "Pad003")
pad4.Profile = sketch4
pad4.setExpression("Length", "Params.pad4_length")
pad4.Midplane = True
body5 = doc.addObject("PartDesign::Body", "Body004")

# Sketch on XY plane
sketch5 = body5.newObject("Sketcher::SketchObject", "Sketch004")
sketch5.AttachmentSupport = (doc.getObject("XY_Plane004"), [""])
sketch5.MapMode = "FlatFace"
sketch5.AttachmentOffset = App.Placement(V(0, 0, 100), App.Rotation())
add_polygon(sketch5, [(-20, -6.5), (-20, -18.5), (20, -18.5), (20, -6.5)])  # lines 0-3
sketch5.addConstraint([
    Sketcher.Constraint("Vertical", 0),
    Sketcher.Constraint("Horizontal", 1),
    Sketcher.Constraint("Vertical", 2),
    Sketcher.Constraint("Horizontal", 3),
    Sketcher.Constraint("DistanceX", 1, 1, 1, 2, 40.0),
    Sketcher.Constraint("DistanceY", 0, 2, 0, 1, 12.0),
    Sketcher.Constraint("DistanceX", 0, 2, -1, 1, 20.0),
    Sketcher.Constraint("DistanceY", 0, 2, -1, 1, 18.5),
])
sketch5.setExpression("Constraints[8]", "Params.sketch5_width")
sketch5.setExpression("Constraints[9]", "Params.sketch5_height")
pad5 = body5.newObject("PartDesign::Pad", "Pad004")
pad5.Profile = sketch5
pad5.setExpression("Length", "Params.pad5_length")
doc.recompute()

body6 = doc.addObject("PartDesign::Body", "Body005")
body6.BaseFeature = body5
boolean = body2.newObject("PartDesign::Boolean", "Boolean")
boolean.Type = "Cut"
boolean.addObjects([body6])
doc.recompute()

boolean2 = body4.newObject("PartDesign::Boolean", "Boolean001")
boolean2.Type = "Cut"
boolean2.addObjects([body5])
body7 = doc.addObject("PartDesign::Body", "Body006")
body7.AllowCompound = True

# Sketch on YZ plane
sketch6 = body7.newObject("Sketcher::SketchObject", "Sketch005")
sketch6.AttachmentSupport = (doc.getObject("YZ_Plane006"), [""])
sketch6.MapMode = "FlatFace"
add_polygon(sketch6, [(-13.5, 86), (-18.5, 86), (-18.5, 66), (-13.5, 66)])  # lines 0-3
add_polygon(sketch6, [(-13.5, -66), (-18.5, -66), (-18.5, -86), (-13.5, -86)])  # lines 4-7
sketch6.addConstraint([
    Sketcher.Constraint("Horizontal", 0),
    Sketcher.Constraint("Vertical", 1),
    Sketcher.Constraint("Horizontal", 2),
    Sketcher.Constraint("Vertical", 3),
    Sketcher.Constraint("Horizontal", 4),
    Sketcher.Constraint("Vertical", 5),
    Sketcher.Constraint("Horizontal", 6),
    Sketcher.Constraint("Vertical", 7),
    Sketcher.Constraint("Symmetric", 1, 2, 4, 2, -1),
    Sketcher.Constraint("Symmetric", 3, 2, 6, 2, -1),
    Sketcher.Constraint("DistanceX", 0, 2, 0, 1, 5.0),
    Sketcher.Constraint("DistanceY", 1, 2, 1, 1, 20.0),
    Sketcher.Constraint("DistanceY", -1, 1, 0, 2, 86.0),
    Sketcher.Constraint("DistanceX", 0, 2, -1, 1, 18.5),
])
sketch6.setExpression("Constraints[18]", "Params.sketch6_width")
sketch6.setExpression("Constraints[19]", "Params.sketch6_height")
pad6 = body7.newObject("PartDesign::Pad", "Pad005")
pad6.Profile = sketch6
pad6.Type = "TwoLengths"
pad6.setExpression("Length", "Params.pad6_length")
pad6.setExpression("Length2", "Params.pad6_length2")
doc.recompute()

body8 = doc.addObject("PartDesign::Body", "Body007")
body8.BaseFeature = body7
boolean3 = body.newObject("PartDesign::Boolean", "Boolean002")
boolean3.Type = "Cut"
boolean3.addObjects([body8])
doc.recompute()

body9 = doc.addObject("PartDesign::Body", "Body008")
body9.BaseFeature = body7
boolean4 = body2.newObject("PartDesign::Boolean", "Boolean003")
boolean4.Type = "Cut"
boolean4.addObjects([body9])
doc.recompute()

body10 = doc.addObject("PartDesign::Body", "Body009")
body10.BaseFeature = body7
boolean5 = body3.newObject("PartDesign::Boolean", "Boolean004")
boolean5.Type = "Cut"
boolean5.addObjects([body10])
doc.recompute()

boolean6 = body4.newObject("PartDesign::Boolean", "Boolean005")
boolean6.Type = "Cut"
boolean6.addObjects([body7])

doc.recompute()
